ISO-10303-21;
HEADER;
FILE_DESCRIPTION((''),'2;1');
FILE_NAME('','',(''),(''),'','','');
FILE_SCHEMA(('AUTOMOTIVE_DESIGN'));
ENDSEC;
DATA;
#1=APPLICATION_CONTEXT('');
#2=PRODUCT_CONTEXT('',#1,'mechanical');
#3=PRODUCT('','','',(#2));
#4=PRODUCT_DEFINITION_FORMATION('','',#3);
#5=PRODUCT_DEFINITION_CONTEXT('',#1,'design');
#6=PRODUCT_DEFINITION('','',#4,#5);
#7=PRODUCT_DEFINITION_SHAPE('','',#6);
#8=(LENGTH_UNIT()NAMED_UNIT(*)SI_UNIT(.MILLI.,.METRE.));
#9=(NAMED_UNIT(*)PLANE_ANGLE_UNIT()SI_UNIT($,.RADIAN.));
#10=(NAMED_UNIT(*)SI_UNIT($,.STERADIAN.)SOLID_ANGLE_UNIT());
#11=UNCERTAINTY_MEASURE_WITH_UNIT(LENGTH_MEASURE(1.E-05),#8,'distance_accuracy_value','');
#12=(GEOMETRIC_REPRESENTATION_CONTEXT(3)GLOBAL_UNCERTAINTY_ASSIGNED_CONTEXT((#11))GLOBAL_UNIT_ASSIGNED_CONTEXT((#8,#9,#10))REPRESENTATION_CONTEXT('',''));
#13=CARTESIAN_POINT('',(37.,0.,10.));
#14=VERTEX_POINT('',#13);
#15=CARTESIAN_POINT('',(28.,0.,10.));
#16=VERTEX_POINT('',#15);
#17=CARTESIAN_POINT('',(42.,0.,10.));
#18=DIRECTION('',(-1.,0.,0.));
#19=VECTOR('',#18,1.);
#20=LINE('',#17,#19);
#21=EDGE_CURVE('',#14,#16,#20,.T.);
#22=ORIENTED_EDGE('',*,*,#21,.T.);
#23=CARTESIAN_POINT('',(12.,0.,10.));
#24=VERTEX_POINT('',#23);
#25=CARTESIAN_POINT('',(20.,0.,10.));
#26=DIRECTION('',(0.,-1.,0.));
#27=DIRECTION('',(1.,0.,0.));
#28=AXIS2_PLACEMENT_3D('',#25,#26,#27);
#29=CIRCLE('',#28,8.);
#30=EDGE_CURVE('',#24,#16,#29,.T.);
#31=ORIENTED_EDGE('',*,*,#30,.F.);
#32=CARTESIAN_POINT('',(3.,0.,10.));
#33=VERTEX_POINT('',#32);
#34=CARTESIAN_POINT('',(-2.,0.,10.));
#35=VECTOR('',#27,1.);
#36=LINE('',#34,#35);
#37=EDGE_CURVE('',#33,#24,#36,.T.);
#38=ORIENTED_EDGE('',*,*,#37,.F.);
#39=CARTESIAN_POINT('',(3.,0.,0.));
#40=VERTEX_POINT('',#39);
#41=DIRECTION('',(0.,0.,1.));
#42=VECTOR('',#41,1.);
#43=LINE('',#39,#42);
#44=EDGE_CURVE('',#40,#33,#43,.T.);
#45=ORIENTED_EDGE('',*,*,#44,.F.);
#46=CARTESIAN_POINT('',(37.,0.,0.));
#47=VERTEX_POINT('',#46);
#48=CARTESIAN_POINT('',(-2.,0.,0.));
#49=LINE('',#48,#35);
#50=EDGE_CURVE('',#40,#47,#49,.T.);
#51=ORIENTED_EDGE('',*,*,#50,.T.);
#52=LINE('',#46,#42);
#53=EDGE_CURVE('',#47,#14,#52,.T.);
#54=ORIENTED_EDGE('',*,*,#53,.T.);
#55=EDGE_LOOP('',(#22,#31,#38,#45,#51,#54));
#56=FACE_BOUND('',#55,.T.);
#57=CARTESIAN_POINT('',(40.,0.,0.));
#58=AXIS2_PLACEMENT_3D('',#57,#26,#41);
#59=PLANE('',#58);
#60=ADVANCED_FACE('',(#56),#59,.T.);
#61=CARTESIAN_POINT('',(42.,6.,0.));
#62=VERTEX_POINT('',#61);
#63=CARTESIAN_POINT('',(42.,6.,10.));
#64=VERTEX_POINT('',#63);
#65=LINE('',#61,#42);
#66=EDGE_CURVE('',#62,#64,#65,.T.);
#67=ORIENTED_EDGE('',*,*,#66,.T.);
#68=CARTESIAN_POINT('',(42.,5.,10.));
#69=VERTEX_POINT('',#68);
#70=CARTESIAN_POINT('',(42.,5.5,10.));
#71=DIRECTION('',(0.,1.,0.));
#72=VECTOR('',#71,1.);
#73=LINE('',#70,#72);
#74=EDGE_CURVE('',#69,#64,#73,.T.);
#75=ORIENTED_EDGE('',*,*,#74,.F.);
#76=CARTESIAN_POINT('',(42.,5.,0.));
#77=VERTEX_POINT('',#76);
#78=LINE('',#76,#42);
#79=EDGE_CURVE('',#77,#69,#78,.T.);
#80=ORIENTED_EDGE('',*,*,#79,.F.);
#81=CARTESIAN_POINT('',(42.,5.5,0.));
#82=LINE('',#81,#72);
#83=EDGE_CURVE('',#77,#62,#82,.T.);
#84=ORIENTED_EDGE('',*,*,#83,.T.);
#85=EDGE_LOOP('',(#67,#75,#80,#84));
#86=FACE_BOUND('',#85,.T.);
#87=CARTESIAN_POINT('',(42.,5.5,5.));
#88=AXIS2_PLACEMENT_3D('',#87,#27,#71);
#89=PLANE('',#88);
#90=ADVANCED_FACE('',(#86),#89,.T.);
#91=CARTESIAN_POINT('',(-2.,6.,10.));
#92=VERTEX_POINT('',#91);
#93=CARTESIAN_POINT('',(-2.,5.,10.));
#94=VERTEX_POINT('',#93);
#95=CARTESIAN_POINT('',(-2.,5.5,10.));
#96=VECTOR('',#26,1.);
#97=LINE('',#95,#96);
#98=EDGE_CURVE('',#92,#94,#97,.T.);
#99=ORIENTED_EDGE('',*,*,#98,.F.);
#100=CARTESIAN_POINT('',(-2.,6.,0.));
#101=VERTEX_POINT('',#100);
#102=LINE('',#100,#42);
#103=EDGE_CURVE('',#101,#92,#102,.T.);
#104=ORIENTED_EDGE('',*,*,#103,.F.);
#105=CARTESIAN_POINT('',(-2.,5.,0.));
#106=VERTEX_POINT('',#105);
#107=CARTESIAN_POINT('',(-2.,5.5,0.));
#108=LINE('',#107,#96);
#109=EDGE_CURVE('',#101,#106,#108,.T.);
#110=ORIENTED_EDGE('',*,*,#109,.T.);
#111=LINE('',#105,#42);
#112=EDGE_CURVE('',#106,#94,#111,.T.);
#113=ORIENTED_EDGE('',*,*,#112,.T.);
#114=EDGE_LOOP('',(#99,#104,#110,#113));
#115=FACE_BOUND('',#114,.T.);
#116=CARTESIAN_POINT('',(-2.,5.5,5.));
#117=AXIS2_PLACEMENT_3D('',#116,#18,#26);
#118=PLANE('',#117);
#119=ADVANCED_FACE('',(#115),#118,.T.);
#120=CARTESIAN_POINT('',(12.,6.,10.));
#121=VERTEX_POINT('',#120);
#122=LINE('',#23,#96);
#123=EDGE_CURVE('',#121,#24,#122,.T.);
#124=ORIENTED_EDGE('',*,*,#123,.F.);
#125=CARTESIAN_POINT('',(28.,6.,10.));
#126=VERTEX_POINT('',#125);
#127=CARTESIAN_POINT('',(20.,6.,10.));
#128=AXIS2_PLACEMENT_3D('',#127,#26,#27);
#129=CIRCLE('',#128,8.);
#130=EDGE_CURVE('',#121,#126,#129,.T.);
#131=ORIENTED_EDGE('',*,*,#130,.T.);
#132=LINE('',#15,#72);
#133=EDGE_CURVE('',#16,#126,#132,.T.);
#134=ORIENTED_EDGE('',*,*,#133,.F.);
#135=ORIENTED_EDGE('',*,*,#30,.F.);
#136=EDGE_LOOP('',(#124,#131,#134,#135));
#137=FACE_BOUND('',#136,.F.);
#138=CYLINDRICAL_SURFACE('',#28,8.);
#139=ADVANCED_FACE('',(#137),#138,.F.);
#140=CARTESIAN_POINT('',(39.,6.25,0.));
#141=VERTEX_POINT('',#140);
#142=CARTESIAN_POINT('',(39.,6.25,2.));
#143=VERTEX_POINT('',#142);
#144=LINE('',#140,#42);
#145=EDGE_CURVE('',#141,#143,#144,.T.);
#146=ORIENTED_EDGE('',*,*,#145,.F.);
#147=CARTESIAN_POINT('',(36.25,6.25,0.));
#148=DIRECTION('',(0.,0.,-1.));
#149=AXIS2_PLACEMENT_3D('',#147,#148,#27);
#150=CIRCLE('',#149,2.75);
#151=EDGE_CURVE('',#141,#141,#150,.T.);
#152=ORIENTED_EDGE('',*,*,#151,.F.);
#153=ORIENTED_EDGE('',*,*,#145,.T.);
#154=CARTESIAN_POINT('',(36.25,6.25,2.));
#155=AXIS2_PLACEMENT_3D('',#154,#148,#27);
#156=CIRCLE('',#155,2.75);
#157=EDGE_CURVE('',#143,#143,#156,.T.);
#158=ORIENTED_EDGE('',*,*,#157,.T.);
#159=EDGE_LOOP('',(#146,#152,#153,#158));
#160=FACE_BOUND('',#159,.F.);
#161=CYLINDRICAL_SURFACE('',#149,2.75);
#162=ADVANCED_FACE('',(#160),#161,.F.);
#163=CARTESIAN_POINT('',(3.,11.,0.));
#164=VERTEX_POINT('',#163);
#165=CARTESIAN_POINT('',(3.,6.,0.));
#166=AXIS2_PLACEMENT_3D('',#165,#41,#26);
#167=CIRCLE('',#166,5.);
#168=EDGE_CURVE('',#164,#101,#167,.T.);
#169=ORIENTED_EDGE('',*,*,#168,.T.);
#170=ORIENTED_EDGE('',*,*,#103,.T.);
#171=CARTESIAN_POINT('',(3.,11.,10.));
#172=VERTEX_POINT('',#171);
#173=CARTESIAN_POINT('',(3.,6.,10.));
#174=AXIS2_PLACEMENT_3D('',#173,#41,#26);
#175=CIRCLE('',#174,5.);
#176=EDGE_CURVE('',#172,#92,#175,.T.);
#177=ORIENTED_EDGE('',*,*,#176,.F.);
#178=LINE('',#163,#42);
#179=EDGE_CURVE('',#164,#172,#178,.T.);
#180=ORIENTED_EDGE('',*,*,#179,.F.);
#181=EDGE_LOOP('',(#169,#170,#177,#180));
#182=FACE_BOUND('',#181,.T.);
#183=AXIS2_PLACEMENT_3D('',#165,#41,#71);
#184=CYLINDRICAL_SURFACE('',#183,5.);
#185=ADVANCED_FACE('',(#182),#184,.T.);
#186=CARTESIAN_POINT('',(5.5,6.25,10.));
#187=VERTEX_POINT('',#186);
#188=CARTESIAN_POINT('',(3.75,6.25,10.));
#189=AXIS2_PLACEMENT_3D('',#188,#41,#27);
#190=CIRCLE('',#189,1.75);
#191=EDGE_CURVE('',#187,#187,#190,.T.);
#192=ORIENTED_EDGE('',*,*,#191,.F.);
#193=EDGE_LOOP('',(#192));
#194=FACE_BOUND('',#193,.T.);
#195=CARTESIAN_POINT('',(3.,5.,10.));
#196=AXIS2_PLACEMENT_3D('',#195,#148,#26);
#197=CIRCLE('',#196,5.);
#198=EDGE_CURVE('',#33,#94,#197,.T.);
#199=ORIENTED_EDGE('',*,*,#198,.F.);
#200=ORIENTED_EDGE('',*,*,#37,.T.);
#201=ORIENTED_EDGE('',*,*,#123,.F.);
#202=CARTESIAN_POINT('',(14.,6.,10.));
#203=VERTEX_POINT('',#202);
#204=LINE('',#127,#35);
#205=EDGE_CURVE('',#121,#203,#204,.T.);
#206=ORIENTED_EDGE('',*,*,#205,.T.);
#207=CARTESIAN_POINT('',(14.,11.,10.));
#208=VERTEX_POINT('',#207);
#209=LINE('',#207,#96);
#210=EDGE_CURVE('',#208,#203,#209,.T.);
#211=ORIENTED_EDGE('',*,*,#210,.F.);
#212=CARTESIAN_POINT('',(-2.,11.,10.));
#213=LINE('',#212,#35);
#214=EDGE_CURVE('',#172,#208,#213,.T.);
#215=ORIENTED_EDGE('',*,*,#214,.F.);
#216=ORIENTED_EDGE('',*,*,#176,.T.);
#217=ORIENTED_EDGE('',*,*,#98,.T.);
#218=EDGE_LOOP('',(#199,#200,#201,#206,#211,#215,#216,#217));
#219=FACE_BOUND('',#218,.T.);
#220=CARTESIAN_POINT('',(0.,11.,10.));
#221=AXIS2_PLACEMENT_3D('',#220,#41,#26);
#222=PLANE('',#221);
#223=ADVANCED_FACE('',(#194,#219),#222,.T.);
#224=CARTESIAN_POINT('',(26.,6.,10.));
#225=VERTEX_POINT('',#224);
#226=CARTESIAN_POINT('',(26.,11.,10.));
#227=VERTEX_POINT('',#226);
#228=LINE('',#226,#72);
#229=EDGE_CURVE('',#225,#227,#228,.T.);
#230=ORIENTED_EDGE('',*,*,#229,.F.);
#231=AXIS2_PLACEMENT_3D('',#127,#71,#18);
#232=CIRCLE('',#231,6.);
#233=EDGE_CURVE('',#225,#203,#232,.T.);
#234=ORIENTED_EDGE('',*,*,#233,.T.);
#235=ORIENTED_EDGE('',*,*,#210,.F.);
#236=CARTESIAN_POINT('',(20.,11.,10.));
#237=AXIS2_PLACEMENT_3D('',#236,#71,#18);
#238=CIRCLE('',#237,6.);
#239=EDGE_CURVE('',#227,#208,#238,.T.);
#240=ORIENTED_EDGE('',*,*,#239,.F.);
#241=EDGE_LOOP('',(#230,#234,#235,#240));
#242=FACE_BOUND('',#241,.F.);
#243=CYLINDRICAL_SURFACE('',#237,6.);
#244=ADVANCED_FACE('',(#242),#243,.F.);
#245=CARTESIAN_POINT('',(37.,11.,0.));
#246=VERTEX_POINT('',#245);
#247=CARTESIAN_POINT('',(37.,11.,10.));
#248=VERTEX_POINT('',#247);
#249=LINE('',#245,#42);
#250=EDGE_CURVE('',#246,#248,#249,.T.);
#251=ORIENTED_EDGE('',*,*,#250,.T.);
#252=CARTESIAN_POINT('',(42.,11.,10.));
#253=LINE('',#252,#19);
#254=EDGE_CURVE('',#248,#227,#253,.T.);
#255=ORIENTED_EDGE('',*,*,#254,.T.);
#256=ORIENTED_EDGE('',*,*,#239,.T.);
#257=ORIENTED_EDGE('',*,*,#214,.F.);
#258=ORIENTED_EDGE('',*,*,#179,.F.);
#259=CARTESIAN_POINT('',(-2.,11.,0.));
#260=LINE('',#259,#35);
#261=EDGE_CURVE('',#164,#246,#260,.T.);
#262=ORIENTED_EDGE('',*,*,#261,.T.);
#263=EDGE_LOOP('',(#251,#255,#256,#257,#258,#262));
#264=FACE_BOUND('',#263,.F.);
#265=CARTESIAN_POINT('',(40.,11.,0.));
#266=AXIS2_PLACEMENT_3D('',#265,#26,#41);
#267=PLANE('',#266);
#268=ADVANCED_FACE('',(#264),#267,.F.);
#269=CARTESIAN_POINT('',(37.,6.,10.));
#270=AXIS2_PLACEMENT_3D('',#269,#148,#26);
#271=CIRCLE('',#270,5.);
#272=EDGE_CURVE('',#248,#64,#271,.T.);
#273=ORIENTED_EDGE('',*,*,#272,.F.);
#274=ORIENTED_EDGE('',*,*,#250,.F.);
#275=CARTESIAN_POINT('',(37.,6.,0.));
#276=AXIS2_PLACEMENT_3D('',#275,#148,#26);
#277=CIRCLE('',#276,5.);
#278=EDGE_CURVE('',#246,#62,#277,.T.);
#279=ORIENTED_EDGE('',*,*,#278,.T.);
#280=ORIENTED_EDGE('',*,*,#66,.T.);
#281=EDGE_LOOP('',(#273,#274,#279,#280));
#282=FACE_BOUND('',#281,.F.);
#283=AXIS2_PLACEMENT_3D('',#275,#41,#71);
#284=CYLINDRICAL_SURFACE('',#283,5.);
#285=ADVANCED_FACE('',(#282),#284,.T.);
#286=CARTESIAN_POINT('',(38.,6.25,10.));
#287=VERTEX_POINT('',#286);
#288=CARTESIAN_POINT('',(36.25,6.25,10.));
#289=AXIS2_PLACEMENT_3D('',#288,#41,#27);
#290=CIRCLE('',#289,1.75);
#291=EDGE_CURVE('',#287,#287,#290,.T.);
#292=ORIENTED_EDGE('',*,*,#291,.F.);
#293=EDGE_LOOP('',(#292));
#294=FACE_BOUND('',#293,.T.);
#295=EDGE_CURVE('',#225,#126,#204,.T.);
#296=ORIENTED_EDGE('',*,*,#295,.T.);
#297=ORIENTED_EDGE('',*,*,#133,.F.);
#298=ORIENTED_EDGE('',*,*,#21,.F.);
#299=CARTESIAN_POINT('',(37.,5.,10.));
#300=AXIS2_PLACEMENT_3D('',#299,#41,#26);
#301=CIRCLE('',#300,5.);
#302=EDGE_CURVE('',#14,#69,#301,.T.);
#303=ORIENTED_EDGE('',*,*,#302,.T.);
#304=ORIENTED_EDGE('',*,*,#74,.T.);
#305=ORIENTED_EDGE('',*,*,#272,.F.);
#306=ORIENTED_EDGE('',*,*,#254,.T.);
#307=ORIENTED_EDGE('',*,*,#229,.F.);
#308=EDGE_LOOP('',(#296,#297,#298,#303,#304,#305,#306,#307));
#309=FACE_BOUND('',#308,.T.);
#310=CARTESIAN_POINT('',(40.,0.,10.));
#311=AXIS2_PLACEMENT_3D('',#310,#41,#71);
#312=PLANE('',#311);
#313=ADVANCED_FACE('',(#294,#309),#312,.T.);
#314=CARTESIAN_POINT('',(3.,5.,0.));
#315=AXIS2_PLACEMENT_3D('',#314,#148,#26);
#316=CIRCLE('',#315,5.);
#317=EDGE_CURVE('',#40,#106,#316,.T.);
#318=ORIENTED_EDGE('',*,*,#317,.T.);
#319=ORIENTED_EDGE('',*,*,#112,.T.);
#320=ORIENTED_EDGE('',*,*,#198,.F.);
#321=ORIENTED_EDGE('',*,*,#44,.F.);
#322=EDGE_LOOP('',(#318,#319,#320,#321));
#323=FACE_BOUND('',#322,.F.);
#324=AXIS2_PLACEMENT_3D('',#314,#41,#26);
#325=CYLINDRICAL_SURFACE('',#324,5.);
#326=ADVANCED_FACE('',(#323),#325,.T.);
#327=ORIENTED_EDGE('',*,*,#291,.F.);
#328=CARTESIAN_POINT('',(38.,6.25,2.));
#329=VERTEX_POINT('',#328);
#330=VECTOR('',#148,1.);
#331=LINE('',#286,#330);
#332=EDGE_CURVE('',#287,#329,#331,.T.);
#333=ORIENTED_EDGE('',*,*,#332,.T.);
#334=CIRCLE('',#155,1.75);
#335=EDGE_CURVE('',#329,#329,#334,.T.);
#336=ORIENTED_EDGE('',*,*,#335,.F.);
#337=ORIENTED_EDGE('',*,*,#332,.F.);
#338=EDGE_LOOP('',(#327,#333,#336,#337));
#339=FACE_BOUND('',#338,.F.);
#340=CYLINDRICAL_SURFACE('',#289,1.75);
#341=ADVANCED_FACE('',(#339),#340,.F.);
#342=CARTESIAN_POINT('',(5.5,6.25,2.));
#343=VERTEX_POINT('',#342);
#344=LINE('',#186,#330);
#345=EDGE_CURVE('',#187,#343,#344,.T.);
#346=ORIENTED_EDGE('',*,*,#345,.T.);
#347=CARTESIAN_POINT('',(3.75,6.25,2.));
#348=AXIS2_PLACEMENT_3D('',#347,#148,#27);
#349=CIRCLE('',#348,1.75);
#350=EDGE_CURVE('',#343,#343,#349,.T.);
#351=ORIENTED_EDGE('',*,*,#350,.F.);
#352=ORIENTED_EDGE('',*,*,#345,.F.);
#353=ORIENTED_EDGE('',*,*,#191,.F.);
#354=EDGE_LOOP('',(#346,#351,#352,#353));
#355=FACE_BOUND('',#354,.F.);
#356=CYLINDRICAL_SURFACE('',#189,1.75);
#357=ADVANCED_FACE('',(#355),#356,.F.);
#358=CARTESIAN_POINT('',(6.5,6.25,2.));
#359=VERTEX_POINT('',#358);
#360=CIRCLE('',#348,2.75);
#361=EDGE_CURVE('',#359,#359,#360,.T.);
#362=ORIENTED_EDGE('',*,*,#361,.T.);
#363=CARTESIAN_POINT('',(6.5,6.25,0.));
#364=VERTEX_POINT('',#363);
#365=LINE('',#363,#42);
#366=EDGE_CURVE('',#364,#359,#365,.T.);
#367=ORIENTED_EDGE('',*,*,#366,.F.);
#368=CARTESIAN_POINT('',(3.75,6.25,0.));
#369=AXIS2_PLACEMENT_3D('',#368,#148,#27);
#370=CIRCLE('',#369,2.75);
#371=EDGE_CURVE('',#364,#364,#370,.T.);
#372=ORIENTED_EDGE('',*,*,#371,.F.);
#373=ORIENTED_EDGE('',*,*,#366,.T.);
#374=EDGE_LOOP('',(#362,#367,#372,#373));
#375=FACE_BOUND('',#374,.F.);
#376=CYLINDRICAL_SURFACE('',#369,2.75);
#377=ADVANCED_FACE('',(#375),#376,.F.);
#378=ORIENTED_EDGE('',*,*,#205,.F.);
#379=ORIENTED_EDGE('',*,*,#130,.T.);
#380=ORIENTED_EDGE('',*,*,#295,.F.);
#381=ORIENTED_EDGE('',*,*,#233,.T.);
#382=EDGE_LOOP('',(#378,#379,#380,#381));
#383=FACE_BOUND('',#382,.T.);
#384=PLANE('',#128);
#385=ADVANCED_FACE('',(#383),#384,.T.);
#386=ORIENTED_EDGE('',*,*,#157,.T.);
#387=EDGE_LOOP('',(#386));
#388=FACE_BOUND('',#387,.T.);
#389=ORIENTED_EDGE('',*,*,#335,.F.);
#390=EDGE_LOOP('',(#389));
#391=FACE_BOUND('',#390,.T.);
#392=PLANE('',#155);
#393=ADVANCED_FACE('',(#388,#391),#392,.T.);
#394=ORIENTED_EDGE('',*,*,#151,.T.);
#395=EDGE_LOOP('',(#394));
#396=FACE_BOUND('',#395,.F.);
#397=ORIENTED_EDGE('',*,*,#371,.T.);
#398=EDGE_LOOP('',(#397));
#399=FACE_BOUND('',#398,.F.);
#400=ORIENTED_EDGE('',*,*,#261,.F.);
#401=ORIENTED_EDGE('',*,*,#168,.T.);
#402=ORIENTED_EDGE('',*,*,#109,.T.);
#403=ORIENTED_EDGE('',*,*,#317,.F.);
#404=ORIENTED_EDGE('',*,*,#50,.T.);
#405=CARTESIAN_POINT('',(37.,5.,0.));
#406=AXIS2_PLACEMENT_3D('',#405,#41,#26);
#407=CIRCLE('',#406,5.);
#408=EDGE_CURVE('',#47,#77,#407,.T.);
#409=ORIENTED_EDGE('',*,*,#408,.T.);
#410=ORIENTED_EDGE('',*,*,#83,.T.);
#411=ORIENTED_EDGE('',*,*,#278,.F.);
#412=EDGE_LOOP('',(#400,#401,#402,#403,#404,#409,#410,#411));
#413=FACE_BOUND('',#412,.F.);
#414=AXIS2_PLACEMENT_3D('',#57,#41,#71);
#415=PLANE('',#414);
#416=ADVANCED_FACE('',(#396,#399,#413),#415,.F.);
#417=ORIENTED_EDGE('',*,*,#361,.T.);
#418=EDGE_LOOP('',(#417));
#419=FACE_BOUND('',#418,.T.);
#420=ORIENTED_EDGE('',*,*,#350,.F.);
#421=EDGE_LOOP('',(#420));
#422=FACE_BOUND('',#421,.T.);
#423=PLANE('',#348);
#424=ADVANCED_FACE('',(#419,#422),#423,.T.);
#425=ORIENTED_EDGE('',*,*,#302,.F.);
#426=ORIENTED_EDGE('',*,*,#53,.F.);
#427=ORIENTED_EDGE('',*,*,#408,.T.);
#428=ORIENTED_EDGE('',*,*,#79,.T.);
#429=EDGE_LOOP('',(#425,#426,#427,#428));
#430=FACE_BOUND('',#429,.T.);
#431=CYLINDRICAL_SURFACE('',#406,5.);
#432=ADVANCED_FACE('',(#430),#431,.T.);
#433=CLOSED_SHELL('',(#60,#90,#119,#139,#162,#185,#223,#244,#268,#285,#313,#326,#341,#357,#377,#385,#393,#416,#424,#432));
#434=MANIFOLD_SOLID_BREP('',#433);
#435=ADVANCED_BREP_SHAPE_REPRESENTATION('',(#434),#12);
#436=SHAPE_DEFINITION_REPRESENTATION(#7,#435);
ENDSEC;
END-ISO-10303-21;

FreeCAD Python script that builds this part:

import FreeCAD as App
import Part
import Sketcher

V = App.Vector


def edges_at(feature, points):
    """Names of the edges that pass closest to the given points."""
    edges = feature.Shape.Edges
    near = lambda p: min(range(len(edges)), key=lambda i: edges[i].distToShape(Part.Vertex(*p))[0])
    return sorted({f"Edge{near(p) + 1}" for p in points})


def add_polygon(sketch, points):
    """Adds a closed chain of lines whose ends are joined by coincident constraints."""
    first, n = sketch.GeometryCount, len(points)
    for a, b in zip(points, points[1:] + points[:1]):
        sketch.addGeometry(Part.LineSegment(App.Vector(*a, 0), App.Vector(*b, 0)), False)
    for i in range(n):
        sketch.addConstraint(Sketcher.Constraint("Coincident", first + i, 2, first + (i + 1) % n, 1))

doc = App.newDocument("Part")
body = doc.addObject("PartDesign::Body", "Body")

sketch1 = body.newObject("Sketcher::SketchObject", "Sketch")
sketch1.AttachmentSupport = (doc.getObject("XY_Plane"), [""])
sketch1.MapMode = "FlatFace"
add_polygon(sketch1, [(0, 11), (0, 0), (40, 0), (40, 11)])
sketch1.addConstraint(Sketcher.Constraint("Vertical", 0))
sketch1.addConstraint(Sketcher.Constraint("Horizontal", 1))
sketch1.addConstraint(Sketcher.Constraint("Vertical", 2))
sketch1.addConstraint(Sketcher.Constraint("Horizontal", 3))
sketch1.addConstraint(Sketcher.Constraint("Coincident", 0, 2, -1, 1))
sketch1.addConstraint(Sketcher.Constraint("DistanceX", 1, 1, 1, 2, 40.0))
sketch1.addConstraint(Sketcher.Constraint("DistanceY", 0, 2, 0, 1, 11.0))
pad1 = body.newObject("PartDesign::Pad", "Pad")
pad1.Profile = sketch1
pad1.Length = 10

sketch2 = body.newObject("Sketcher::SketchObject", "Sketch001")
sketch2.AttachmentSupport = (doc.getObject("XZ_Plane"), [""])
sketch2.MapMode = "FlatFace"
sketch2.addGeometry(Part.Circle(V(20, 10, 0), V(0, 0, 1), 8), False)
sketch2.addConstraint(Sketcher.Constraint("Diameter", 0, 16.0))
sketch2.addConstraint(Sketcher.Constraint("DistanceX", -1, 1, 0, 3, 20.0))
sketch2.addConstraint(Sketcher.Constraint("DistanceY", -1, 1, 0, 3, 10.0))
pocket1 = body.newObject("PartDesign::Pocket", "Pocket")
pocket1.Profile = sketch2
pocket1.Length = 6

sketch3 = body.newObject("Sketcher::SketchObject", "Sketch002")
sketch3.AttachmentSupport = (doc.getObject("XZ_Plane"), [""])
sketch3.MapMode = "FlatFace"
sketch3.AttachmentOffset = App.Placement(V(0, 0, -11), App.Rotation())
sketch3.addGeometry(Part.Circle(V(20, 10, 0), V(0, 0, 1), 6), False)
sketch3.addConstraint(Sketcher.Constraint("Diameter", 0, 12.0))
sketch3.addConstraint(Sketcher.Constraint("DistanceX", -1, 1, 0, 3, 20.0))
sketch3.addConstraint(Sketcher.Constraint("DistanceY", -1, 1, 0, 3, 10.0))
pocket2 = body.newObject("PartDesign::Pocket", "Pocket001")
pocket2.Profile = sketch3
pocket2.Length = 6
pocket2.Reversed = True

sketch4 = body.newObject("Sketcher::SketchObject", "Sketch003")
sketch4.AttachmentSupport = (doc.getObject("YZ_Plane"), [""])
sketch4.MapMode = "FlatFace"
add_polygon(sketch4, [(11, 10), (11, 0), (0, 0), (0, 10)])
sketch4.addConstraint(Sketcher.Constraint("Vertical", 0))
sketch4.addConstraint(Sketcher.Constraint("Horizontal", 1))
sketch4.addConstraint(Sketcher.Constraint("Vertical", 2))
sketch4.addConstraint(Sketcher.Constraint("Horizontal", 3))
sketch4.addConstraint(Sketcher.Constraint("Coincident", 1, 2, -1, 1))
sketch4.addConstraint(Sketcher.Constraint("DistanceX", 1, 2, 1, 1, 11.0))
sketch4.addConstraint(Sketcher.Constraint("DistanceY", 0, 2, 0, 1, 10.0))
pad2 = body.newObject("PartDesign::Pad", "Pad001")
pad2.Profile = sketch4
pad2.Length = 2
pad2.Reversed = True

sketch5 = body.newObject("Sketcher::SketchObject", "Sketch004")
sketch5.AttachmentSupport = (doc.getObject("YZ_Plane"), [""])
sketch5.MapMode = "FlatFace"
sketch5.AttachmentOffset = App.Placement(V(0, 0, 40), App.Rotation())
add_polygon(sketch5, [(0, 10), (0, 0), (11, 0), (11, 10)])
sketch5.addConstraint(Sketcher.Constraint("Vertical", 0))
sketch5.addConstraint(Sketcher.Constraint("Horizontal", 1))
sketch5.addConstraint(Sketcher.Constraint("Vertical", 2))
sketch5.addConstraint(Sketcher.Constraint("Horizontal", 3))
sketch5.addConstraint(Sketcher.Constraint("Coincident", 0, 2, -1, 1))
sketch5.addConstraint(Sketcher.Constraint("DistanceX", 1, 1, 1, 2, 11.0))
sketch5.addConstraint(Sketcher.Constraint("DistanceY", 0, 2, 0, 1, 10.0))
pad3 = body.newObject("PartDesign::Pad", "Pad002")
pad3.Profile = sketch5
pad3.Length = 2
doc.recompute()

fillet = body.newObject("PartDesign::Fillet", "Fillet")
fillet.Base = (pad3, edges_at(pad3, [
    (42, 11, 5),
    (42, 0, 5),
    (-2, 11, 5),
    (-2, 0, 5),
]))
fillet.Radius = 5

sketch6 = body.newObject("Sketcher::SketchObject", "Sketch005")
sketch6.AttachmentSupport = (doc.getObject("XY_Plane"), [""])
sketch6.MapMode = "FlatFace"
sketch6.AttachmentOffset = App.Placement(V(0, 0, 10), App.Rotation())
sketch6.addGeometry(Part.Circle(V(3.8, 6.2, 0), V(0, 0, 1), 1.8), False)
sketch6.addGeometry(Part.Circle(V(36.2, 6.2, 0), V(0, 0, 1), 1.8), False)
sketch6.addConstraint(Sketcher.Constraint("Equal", 0, 1))
sketch6.addConstraint(Sketcher.Constraint("Horizontal", 0, 3, 1, 3))
sketch6.addConstraint(Sketcher.Constraint("Diameter", 0, 3.5))
sketch6.addConstraint(Sketcher.Constraint("DistanceX", 0, 3, 1, 3, 32.5))
sketch6.addConstraint(Sketcher.Constraint("DistanceX", -1, 1, 0, 3, 3.75))
sketch6.addConstraint(Sketcher.Constraint("DistanceY", -1, 1, 0, 3, 6.25))
pocket3 = body.newObject("PartDesign::Pocket", "Pocket002")
pocket3.Profile = sketch6
pocket3.Length = 25

sketch7 = body.newObject("Sketcher::SketchObject", "Sketch006")
sketch7.AttachmentSupport = (doc.getObject("XY_Plane"), [""])
sketch7.MapMode = "FlatFace"
sketch7.addGeometry(Part.Circle(V(3.8, 6.2, 0), V(0, 0, 1), 2.8), False)
sketch7.addGeometry(Part.Circle(V(3.8, 6.2, 0), V(0, 0, 1), 1.8), False)
sketch7.addGeometry(Part.Circle(V(36.2, 6.2, 0), V(0, 0, 1), 2.8), False)
sketch7.addGeometry(Part.Circle(V(36.2, 6.2, 0), V(0, 0, 1), 1.8), False)
sketch7.addConstraint(Sketcher.Constraint("Coincident", 1, 3, 0, 3))
sketch7.addConstraint(Sketcher.Constraint("Coincident", 3, 3, 2, 3))
sketch7.addConstraint(Sketcher.Constraint("Equal", 0, 2))
sketch7.addConstraint(Sketcher.Constraint("Equal", 1, 3))
sketch7.addConstraint(Sketcher.Constraint("Horizontal", 1, 3, 2, 3))
sketch7.addConstraint(Sketcher.Constraint("Diameter", 0, 5.5))
sketch7.addConstraint(Sketcher.Constraint("Diameter", 1, 3.5))
sketch7.addConstraint(Sketcher.Constraint("DistanceX", 0, 3, 2, 3, 32.5))
sketch7.addConstraint(Sketcher.Constraint("DistanceX", -1, 1, 0, 3, 3.75))
sketch7.addConstraint(Sketcher.Constraint("DistanceY", -1, 1, 0, 3, 6.25))
pocket4 = body.newObject("PartDesign::Pocket", "Pocket003")
pocket4.Profile = sketch7
pocket4.Length = 2
pocket4.Reversed = True

doc.recompute()
